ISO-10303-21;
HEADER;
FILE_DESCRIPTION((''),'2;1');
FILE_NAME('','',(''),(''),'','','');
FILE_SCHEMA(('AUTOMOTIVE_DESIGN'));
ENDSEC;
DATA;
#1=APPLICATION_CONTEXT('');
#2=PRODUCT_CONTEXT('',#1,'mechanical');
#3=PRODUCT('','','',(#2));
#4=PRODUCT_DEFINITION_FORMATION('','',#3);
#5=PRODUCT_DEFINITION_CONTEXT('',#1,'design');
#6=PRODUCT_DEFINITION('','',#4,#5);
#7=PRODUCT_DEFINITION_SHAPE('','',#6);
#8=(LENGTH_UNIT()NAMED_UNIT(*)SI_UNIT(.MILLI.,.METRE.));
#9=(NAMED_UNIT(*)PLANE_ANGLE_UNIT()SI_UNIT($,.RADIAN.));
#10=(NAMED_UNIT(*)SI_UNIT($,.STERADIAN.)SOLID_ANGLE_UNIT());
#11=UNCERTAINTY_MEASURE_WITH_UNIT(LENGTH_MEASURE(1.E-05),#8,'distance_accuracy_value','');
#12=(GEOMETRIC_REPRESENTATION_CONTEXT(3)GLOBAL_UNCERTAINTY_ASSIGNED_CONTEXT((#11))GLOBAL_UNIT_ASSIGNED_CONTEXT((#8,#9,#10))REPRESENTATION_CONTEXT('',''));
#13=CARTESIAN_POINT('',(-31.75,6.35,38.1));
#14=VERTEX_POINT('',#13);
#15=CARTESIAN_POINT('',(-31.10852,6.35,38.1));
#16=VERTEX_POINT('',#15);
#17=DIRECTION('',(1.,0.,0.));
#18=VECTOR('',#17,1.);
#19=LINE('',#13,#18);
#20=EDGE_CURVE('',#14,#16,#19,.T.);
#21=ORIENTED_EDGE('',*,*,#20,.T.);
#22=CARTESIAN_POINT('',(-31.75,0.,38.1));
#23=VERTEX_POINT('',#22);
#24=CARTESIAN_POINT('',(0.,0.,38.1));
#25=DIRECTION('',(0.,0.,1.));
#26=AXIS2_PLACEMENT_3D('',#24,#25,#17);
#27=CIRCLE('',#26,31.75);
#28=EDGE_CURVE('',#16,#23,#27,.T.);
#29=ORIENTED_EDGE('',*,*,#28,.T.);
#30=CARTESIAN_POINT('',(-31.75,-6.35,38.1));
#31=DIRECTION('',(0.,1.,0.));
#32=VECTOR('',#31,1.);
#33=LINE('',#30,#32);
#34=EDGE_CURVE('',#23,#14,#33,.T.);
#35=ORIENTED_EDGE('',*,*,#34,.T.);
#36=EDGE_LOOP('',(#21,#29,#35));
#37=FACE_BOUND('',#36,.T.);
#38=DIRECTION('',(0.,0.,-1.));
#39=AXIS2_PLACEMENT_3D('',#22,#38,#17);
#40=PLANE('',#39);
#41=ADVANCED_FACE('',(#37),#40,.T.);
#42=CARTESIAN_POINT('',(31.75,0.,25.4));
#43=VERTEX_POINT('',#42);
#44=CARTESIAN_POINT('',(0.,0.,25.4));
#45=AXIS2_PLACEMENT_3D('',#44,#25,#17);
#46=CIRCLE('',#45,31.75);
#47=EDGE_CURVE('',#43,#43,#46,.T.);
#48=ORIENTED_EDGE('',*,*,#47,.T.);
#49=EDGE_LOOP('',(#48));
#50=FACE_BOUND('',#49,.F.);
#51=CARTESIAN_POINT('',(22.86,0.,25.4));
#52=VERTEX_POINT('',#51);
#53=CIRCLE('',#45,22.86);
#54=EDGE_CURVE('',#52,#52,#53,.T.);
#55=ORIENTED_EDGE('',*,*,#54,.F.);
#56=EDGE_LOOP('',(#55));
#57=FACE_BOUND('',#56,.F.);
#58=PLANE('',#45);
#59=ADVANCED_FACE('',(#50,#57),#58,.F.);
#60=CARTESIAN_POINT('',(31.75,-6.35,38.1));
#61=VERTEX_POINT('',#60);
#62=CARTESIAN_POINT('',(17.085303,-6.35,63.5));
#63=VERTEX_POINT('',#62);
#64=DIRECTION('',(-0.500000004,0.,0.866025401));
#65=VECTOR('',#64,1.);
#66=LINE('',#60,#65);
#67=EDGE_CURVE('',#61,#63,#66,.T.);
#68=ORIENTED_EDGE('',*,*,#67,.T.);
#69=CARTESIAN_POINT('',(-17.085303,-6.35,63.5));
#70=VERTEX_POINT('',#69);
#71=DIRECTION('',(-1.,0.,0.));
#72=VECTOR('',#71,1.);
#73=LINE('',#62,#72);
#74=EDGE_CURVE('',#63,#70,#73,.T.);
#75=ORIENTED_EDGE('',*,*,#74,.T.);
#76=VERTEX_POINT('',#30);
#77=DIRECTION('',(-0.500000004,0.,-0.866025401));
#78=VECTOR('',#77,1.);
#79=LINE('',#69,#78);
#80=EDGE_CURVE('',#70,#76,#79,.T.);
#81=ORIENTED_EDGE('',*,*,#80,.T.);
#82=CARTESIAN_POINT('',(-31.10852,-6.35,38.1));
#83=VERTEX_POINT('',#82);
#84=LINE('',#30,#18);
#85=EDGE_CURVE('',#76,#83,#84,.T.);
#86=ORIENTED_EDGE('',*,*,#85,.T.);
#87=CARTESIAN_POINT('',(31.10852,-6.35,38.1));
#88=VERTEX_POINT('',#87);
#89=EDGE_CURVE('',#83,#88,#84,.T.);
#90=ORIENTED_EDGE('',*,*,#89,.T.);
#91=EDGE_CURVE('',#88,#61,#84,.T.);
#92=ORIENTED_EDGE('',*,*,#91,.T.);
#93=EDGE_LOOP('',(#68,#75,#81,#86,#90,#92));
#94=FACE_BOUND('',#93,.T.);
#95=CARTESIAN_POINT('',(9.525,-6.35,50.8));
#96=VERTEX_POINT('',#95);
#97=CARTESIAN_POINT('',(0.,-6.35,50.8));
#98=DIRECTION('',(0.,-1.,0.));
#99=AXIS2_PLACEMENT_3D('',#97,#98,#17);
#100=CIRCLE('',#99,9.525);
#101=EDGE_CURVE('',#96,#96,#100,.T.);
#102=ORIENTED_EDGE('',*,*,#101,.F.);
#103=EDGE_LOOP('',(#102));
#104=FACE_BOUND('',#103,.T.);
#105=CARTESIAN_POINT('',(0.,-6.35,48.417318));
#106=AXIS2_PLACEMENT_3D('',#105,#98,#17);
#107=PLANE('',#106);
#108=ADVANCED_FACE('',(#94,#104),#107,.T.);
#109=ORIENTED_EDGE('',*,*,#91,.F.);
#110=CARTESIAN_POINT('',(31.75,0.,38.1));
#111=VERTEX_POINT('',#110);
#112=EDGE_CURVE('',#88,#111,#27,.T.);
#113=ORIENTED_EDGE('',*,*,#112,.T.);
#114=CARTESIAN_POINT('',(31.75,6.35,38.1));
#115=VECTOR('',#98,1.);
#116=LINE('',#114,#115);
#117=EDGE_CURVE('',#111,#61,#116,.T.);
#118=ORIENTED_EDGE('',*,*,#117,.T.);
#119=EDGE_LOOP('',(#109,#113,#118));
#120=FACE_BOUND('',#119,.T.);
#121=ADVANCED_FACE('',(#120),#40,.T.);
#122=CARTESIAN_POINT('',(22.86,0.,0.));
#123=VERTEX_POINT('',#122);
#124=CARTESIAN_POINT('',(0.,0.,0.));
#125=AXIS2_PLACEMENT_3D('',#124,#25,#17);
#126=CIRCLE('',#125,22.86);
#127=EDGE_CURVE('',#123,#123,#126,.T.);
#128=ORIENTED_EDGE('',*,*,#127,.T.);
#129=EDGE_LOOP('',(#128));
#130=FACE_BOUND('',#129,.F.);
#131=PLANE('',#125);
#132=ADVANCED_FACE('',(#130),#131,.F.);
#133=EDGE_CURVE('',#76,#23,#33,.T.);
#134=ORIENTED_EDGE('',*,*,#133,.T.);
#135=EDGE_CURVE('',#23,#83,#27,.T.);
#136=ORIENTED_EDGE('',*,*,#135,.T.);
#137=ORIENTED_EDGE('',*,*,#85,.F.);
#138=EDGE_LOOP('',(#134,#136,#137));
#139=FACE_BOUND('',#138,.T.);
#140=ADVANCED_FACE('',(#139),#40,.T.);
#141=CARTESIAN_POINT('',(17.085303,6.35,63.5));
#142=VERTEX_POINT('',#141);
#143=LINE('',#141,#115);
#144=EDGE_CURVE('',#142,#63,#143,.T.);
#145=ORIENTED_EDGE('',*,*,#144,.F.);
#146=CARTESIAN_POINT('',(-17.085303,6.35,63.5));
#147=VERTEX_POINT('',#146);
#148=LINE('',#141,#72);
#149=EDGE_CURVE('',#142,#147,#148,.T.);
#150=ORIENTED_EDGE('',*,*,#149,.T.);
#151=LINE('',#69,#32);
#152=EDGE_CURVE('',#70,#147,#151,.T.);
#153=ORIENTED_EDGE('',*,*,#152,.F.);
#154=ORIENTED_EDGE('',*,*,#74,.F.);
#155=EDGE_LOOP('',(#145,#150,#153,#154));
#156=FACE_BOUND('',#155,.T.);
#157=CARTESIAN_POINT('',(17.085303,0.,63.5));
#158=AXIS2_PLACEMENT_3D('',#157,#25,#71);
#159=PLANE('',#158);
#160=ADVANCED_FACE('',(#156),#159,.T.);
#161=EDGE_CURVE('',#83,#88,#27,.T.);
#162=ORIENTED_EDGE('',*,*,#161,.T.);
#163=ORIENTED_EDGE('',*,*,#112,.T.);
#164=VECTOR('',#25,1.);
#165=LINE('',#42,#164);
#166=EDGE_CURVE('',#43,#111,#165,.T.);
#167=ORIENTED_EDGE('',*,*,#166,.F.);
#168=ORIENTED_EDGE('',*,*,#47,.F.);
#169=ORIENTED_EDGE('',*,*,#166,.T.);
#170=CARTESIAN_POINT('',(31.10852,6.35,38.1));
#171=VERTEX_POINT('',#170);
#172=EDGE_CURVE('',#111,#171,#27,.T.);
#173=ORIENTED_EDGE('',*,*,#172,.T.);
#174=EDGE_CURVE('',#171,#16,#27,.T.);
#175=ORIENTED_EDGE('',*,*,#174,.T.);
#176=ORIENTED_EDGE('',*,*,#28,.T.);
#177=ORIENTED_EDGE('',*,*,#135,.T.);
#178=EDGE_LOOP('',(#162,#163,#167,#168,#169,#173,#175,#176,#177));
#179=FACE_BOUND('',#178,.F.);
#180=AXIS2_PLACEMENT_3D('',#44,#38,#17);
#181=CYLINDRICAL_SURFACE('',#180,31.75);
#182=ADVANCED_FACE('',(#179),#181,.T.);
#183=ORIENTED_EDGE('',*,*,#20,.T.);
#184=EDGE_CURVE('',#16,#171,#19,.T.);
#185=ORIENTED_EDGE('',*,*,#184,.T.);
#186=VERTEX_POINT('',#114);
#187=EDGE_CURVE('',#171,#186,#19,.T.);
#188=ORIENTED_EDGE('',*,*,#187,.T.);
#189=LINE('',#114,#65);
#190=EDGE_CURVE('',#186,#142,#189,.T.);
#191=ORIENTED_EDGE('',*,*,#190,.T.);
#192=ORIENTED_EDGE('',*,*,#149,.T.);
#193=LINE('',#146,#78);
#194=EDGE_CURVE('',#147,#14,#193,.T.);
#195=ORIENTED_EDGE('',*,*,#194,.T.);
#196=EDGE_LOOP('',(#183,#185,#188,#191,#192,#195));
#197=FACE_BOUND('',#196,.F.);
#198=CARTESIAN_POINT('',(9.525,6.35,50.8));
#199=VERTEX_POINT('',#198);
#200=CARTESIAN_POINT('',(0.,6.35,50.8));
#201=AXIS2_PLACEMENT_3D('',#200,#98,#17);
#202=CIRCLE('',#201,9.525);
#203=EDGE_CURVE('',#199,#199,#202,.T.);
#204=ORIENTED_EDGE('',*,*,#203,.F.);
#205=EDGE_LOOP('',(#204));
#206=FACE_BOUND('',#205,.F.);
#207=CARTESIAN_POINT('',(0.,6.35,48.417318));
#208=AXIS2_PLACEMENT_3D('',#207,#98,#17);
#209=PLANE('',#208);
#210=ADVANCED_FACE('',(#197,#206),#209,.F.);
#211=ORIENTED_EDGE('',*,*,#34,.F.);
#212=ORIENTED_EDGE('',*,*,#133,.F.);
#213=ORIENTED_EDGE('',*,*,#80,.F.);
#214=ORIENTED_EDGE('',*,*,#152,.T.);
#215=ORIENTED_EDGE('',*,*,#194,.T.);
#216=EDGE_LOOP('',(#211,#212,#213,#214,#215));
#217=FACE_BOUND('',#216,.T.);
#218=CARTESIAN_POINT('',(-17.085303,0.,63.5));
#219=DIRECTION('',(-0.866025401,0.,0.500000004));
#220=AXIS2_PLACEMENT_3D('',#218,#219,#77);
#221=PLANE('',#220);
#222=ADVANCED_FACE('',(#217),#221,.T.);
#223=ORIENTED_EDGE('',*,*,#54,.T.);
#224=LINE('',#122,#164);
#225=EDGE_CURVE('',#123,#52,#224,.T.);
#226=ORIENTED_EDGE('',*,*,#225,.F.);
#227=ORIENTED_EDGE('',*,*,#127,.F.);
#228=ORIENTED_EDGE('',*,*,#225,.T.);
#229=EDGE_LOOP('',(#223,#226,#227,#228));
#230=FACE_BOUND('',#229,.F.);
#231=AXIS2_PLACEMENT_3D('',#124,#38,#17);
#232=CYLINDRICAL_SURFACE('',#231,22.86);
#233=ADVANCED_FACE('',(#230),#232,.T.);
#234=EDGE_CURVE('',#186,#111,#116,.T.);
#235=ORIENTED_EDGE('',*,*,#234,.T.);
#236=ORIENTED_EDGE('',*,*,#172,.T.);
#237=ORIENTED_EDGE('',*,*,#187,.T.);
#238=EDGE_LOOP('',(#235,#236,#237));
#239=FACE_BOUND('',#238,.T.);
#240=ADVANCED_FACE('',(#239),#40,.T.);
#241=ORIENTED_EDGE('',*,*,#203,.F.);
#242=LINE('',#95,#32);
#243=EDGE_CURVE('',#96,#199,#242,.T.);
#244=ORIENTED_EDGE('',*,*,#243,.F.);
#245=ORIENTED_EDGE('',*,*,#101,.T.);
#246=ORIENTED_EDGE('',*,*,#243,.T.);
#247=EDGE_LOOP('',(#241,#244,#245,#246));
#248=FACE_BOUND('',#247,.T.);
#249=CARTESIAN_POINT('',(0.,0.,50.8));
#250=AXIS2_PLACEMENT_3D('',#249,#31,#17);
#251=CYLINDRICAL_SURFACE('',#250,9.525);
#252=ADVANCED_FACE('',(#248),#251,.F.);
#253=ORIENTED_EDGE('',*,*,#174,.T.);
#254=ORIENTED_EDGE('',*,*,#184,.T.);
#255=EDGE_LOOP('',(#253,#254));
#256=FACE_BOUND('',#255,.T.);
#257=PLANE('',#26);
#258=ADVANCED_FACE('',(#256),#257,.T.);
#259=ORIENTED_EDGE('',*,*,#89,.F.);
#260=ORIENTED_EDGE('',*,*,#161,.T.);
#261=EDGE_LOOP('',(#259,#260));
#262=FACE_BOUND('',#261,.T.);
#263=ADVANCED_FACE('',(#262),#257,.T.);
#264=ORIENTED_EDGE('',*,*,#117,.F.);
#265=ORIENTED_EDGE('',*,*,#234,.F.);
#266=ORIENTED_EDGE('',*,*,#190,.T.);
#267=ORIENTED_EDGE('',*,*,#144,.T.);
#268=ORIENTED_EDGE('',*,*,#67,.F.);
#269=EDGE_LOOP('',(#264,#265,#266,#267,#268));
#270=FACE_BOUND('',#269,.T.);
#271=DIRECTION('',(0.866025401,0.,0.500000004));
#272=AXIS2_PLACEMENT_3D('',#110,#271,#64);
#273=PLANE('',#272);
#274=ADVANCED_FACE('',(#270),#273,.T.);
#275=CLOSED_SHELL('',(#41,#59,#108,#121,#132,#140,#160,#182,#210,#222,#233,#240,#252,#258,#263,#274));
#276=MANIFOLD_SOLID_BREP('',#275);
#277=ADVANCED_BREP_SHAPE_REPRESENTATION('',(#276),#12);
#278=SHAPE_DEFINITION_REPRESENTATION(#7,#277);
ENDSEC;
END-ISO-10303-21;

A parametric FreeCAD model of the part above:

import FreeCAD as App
import Part
import Sketcher
from FreeCAD import Vector
Q = App.Units.Quantity


def add_polygon(sketch, points):
    """Adds a closed chain of lines whose ends are joined by coincident constraints."""
    first, n = sketch.GeometryCount, len(points)
    for a, b in zip(points, points[1:] + points[:1]):
        sketch.addGeometry(Part.LineSegment(App.Vector(*a, 0), App.Vector(*b, 0)), False)
    for i in range(n):
        sketch.addConstraint(Sketcher.Constraint("Coincident", first + i, 2, first + (i + 1) % n, 1))

doc = App.newDocument("Part")
body = doc.addObject("PartDesign::Body", "Body")

sketch1 = doc.addObject("Sketcher::SketchObject", "Sketch")
body.addObject(sketch1)
sketch1.AttachmentSupport = (doc.XY_Plane, [""])
sketch1.MapMode = "FlatFace"
sketch1.addGeometry(Part.Circle(Vector(0, 0, 0), Vector(0, 0, 1), 22.86), False)
sketch1.addConstraint(Sketcher.Constraint("Coincident", 0, 3, -1, 1))
sketch1.addConstraint(Sketcher.Constraint("Diameter", 0, Q("1.8 in")))
pad1 = doc.addObject("PartDesign::Pad", "Pad")
body.addObject(pad1)
pad1.Profile = sketch1
pad1.Length = Q("1 in")

sketch2 = doc.addObject("Sketcher::SketchObject", "Sketch001")
body.addObject(sketch2)
sketch2.AttachmentSupport = (doc.XY_Plane, [""])
sketch2.MapMode = "FlatFace"
sketch2.AttachmentOffset = App.Placement(Vector(0, 0, 1 * 25.4), App.Rotation())
sketch2.addGeometry(Part.Circle(Vector(0, 0, 0), Vector(0, 0, 1), 31.75), False)
sketch2.addConstraint(Sketcher.Constraint("Coincident", 0, 3, -1, 1))
sketch2.addConstraint(Sketcher.Constraint("Diameter", 0, Q("2.5 in")))
pad2 = doc.addObject("PartDesign::Pad", "Pad001")
body.addObject(pad2)
pad2.Profile = sketch2
pad2.Length = Q("0.5 in")

sketch3 = doc.addObject("Sketcher::SketchObject", "Sketch002")
body.addObject(sketch3)
sketch3.AttachmentSupport = (doc.XZ_Plane, [""])
sketch3.MapMode = "FlatFace"
add_polygon(sketch3, [(-31.75, 38.1), (31.75, 38.1), (17.085303, 63.5), (-17.085303, 63.5)])
sketch3.addGeometry(Part.Circle(Vector(0, 50.8, 0), Vector(0, 0, 1), 9.525), False)
sketch3.addConstraint(Sketcher.Constraint("Horizontal", 0))
sketch3.addConstraint(Sketcher.Constraint("Horizontal", 2))
sketch3.addConstraint(Sketcher.Constraint("PointOnObject", 4, 3, -2))
sketch3.addConstraint(Sketcher.Constraint("Equal", 1, 3))
sketch3.addConstraint(Sketcher.Constraint("Diameter", 4, Q("0.75 in")))
sketch3.addConstraint(Sketcher.Constraint("DistanceX", 0, 1, 0, 2, Q("2.5 in")))
sketch3.addConstraint(Sketcher.Constraint("DistanceY", -1, 1, 4, 3, Q("2 in")))
sketch3.addConstraint(Sketcher.Constraint("Angle", 1, Q("120 deg")))
sketch3.addConstraint(Sketcher.Constraint("DistanceY", 0, 2, 1, 2, Q("1 in")))
sketch3.addConstraint(Sketcher.Constraint("DistanceY", -1, 1, 0, 2, Q("1.5 in")))
sketch3.addConstraint(Sketcher.Constraint("DistanceX", -1, 1, 0, 2, Q("1.25 in")))
pad3 = doc.addObject("PartDesign::Pad", "Pad002")
body.addObject(pad3)
pad3.Profile = sketch3
pad3.Length = Q("0.5 in")
pad3.Midplane = True

doc.recompute()
